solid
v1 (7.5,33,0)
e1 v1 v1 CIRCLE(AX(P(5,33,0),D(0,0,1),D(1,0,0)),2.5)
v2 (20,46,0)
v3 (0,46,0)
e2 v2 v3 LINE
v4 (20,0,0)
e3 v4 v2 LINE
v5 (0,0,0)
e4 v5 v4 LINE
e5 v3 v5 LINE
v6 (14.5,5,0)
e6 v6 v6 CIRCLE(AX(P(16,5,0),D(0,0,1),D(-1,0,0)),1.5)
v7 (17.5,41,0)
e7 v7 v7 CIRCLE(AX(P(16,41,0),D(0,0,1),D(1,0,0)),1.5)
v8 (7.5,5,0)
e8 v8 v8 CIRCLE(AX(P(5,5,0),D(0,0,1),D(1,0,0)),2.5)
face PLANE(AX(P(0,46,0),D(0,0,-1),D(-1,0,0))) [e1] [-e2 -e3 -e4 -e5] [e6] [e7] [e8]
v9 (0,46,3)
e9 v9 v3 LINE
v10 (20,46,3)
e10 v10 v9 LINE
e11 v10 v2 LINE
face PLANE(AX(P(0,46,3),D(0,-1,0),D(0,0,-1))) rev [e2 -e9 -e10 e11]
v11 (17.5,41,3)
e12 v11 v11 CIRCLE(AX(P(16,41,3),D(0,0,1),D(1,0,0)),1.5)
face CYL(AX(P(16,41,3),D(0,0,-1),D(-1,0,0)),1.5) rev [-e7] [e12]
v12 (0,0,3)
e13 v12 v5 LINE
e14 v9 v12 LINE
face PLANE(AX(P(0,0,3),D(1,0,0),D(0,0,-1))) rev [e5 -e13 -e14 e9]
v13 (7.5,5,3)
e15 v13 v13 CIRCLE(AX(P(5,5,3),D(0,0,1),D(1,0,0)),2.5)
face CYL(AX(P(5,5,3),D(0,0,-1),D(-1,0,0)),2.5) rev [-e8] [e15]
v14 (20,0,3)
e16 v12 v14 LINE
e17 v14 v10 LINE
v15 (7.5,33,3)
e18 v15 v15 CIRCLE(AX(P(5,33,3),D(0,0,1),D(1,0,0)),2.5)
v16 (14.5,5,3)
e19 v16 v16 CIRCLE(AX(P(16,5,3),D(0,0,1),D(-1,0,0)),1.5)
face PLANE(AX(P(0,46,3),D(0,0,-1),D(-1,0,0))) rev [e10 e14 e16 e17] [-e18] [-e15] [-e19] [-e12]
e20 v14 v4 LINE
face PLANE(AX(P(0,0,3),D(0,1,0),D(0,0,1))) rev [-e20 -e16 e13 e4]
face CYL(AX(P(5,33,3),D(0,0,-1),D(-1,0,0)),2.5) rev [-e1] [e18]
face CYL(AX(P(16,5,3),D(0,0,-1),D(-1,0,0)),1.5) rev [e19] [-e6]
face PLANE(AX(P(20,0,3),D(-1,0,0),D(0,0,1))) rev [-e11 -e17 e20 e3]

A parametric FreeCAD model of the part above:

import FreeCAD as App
import Part
import Sketcher

V = App.Vector


def add_polygon(sketch, points):
    """Adds a closed chain of lines whose ends are joined by coincident constraints."""
    first, n = sketch.GeometryCount, len(points)
    for a, b in zip(points, points[1:] + points[:1]):
        sketch.addGeometry(Part.LineSegment(App.Vector(*a, 0), App.Vector(*b, 0)), False)
    for i in range(n):
        sketch.addConstraint(Sketcher.Constraint("Coincident", first + i, 2, first + (i + 1) % n, 1))

doc = App.newDocument("Part")
params = doc.addObject("Spreadsheet::Sheet", "Params")
for row, (alias, value) in enumerate([
    ("sketch1_diameter", "5 mm"),
    ("sketch1_diameter2", "3 mm"),
    ("sketch1_width", "20 mm"),
    ("sketch1_height", "46 mm"),
    ("pad1_length", "3 mm"),
], start=1):
    params.set(f"A{row}", alias)
    params.set(f"B{row}", "=" + value)
    params.setAlias(f"B{row}", alias)

body = doc.addObject("PartDesign::Body", "Body")

# Sketch on XY plane
sketch1 = body.newObject("Sketcher::SketchObject", "Sketch")
sketch1.AttachmentSupport = (doc.getObject("XY_Plane"), [""])
sketch1.MapMode = "FlatFace"
add_polygon(sketch1, [(0, 46), (0, 0), (20, 0), (20, 46)])  # lines 0-3
sketch1.addGeometry(Part.Circle(V(5, 5, 0), V(0, 0, 1), 2.5), False)  # 4
sketch1.addGeometry(Part.Circle(V(16, 5, 0), V(0, 0, 1), 1.5), False)  # 5
sketch1.addGeometry(Part.Circle(V(5, 33, 0), V(0, 0, 1), 2.5), False)  # 6
sketch1.addGeometry(Part.Circle(V(16, 41, 0), V(0, 0, 1), 1.5), False)  # 7
sketch1.addConstraint([
    Sketcher.Constraint("Vertical", 0),
    Sketcher.Constraint("Horizontal", 1),
    Sketcher.Constraint("Vertical", 2),
    Sketcher.Constraint("Horizontal", 3),
    Sketcher.Constraint("Coincident", 0, 2, -1, 1),
    Sketcher.Constraint("Equal", 4, 6),
    Sketcher.Constraint("Equal", 5, 7),
    Sketcher.Constraint("Horizontal", 4, 3, 5, 3),
    Sketcher.Constraint("Vertical", 4, 3, 6, 3),
    Sketcher.Constraint("Vertical", 5, 3, 7, 3),
    Sketcher.Constraint("Diameter", 4, 5.0),
    Sketcher.Constraint("Diameter", 5, 3.0),
    Sketcher.Constraint("DistanceX", 1, 1, 1, 2, 20.0),
    Sketcher.Constraint("DistanceY", 0, 2, 0, 1, 46.0),
    Sketcher.Constraint("DistanceX", -1, 1, 4, 3, 5.0),
    Sketcher.Constraint("DistanceY", -1, 1, 4, 3, 5.0),
    Sketcher.Constraint("DistanceX", -1, 1, 5, 3, 16.0),
    Sketcher.Constraint("DistanceY", -1, 1, 6, 3, 33.0),
    Sketcher.Constraint("DistanceY", -1, 1, 7, 3, 41.0),
])
sketch1.setExpression("Constraints[14]", "Params.sketch1_diameter")
sketch1.setExpression("Constraints[15]", "Params.sketch1_diameter2")
sketch1.setExpression("Constraints[16]", "Params.sketch1_width")
sketch1.setExpression("Constraints[17]", "Params.sketch1_height")
pad1 = body.newObject("PartDesign::Pad", "Pad")
pad1.Profile = sketch1
pad1.setExpression("Length", "Params.pad1_length")

doc.recompute()
